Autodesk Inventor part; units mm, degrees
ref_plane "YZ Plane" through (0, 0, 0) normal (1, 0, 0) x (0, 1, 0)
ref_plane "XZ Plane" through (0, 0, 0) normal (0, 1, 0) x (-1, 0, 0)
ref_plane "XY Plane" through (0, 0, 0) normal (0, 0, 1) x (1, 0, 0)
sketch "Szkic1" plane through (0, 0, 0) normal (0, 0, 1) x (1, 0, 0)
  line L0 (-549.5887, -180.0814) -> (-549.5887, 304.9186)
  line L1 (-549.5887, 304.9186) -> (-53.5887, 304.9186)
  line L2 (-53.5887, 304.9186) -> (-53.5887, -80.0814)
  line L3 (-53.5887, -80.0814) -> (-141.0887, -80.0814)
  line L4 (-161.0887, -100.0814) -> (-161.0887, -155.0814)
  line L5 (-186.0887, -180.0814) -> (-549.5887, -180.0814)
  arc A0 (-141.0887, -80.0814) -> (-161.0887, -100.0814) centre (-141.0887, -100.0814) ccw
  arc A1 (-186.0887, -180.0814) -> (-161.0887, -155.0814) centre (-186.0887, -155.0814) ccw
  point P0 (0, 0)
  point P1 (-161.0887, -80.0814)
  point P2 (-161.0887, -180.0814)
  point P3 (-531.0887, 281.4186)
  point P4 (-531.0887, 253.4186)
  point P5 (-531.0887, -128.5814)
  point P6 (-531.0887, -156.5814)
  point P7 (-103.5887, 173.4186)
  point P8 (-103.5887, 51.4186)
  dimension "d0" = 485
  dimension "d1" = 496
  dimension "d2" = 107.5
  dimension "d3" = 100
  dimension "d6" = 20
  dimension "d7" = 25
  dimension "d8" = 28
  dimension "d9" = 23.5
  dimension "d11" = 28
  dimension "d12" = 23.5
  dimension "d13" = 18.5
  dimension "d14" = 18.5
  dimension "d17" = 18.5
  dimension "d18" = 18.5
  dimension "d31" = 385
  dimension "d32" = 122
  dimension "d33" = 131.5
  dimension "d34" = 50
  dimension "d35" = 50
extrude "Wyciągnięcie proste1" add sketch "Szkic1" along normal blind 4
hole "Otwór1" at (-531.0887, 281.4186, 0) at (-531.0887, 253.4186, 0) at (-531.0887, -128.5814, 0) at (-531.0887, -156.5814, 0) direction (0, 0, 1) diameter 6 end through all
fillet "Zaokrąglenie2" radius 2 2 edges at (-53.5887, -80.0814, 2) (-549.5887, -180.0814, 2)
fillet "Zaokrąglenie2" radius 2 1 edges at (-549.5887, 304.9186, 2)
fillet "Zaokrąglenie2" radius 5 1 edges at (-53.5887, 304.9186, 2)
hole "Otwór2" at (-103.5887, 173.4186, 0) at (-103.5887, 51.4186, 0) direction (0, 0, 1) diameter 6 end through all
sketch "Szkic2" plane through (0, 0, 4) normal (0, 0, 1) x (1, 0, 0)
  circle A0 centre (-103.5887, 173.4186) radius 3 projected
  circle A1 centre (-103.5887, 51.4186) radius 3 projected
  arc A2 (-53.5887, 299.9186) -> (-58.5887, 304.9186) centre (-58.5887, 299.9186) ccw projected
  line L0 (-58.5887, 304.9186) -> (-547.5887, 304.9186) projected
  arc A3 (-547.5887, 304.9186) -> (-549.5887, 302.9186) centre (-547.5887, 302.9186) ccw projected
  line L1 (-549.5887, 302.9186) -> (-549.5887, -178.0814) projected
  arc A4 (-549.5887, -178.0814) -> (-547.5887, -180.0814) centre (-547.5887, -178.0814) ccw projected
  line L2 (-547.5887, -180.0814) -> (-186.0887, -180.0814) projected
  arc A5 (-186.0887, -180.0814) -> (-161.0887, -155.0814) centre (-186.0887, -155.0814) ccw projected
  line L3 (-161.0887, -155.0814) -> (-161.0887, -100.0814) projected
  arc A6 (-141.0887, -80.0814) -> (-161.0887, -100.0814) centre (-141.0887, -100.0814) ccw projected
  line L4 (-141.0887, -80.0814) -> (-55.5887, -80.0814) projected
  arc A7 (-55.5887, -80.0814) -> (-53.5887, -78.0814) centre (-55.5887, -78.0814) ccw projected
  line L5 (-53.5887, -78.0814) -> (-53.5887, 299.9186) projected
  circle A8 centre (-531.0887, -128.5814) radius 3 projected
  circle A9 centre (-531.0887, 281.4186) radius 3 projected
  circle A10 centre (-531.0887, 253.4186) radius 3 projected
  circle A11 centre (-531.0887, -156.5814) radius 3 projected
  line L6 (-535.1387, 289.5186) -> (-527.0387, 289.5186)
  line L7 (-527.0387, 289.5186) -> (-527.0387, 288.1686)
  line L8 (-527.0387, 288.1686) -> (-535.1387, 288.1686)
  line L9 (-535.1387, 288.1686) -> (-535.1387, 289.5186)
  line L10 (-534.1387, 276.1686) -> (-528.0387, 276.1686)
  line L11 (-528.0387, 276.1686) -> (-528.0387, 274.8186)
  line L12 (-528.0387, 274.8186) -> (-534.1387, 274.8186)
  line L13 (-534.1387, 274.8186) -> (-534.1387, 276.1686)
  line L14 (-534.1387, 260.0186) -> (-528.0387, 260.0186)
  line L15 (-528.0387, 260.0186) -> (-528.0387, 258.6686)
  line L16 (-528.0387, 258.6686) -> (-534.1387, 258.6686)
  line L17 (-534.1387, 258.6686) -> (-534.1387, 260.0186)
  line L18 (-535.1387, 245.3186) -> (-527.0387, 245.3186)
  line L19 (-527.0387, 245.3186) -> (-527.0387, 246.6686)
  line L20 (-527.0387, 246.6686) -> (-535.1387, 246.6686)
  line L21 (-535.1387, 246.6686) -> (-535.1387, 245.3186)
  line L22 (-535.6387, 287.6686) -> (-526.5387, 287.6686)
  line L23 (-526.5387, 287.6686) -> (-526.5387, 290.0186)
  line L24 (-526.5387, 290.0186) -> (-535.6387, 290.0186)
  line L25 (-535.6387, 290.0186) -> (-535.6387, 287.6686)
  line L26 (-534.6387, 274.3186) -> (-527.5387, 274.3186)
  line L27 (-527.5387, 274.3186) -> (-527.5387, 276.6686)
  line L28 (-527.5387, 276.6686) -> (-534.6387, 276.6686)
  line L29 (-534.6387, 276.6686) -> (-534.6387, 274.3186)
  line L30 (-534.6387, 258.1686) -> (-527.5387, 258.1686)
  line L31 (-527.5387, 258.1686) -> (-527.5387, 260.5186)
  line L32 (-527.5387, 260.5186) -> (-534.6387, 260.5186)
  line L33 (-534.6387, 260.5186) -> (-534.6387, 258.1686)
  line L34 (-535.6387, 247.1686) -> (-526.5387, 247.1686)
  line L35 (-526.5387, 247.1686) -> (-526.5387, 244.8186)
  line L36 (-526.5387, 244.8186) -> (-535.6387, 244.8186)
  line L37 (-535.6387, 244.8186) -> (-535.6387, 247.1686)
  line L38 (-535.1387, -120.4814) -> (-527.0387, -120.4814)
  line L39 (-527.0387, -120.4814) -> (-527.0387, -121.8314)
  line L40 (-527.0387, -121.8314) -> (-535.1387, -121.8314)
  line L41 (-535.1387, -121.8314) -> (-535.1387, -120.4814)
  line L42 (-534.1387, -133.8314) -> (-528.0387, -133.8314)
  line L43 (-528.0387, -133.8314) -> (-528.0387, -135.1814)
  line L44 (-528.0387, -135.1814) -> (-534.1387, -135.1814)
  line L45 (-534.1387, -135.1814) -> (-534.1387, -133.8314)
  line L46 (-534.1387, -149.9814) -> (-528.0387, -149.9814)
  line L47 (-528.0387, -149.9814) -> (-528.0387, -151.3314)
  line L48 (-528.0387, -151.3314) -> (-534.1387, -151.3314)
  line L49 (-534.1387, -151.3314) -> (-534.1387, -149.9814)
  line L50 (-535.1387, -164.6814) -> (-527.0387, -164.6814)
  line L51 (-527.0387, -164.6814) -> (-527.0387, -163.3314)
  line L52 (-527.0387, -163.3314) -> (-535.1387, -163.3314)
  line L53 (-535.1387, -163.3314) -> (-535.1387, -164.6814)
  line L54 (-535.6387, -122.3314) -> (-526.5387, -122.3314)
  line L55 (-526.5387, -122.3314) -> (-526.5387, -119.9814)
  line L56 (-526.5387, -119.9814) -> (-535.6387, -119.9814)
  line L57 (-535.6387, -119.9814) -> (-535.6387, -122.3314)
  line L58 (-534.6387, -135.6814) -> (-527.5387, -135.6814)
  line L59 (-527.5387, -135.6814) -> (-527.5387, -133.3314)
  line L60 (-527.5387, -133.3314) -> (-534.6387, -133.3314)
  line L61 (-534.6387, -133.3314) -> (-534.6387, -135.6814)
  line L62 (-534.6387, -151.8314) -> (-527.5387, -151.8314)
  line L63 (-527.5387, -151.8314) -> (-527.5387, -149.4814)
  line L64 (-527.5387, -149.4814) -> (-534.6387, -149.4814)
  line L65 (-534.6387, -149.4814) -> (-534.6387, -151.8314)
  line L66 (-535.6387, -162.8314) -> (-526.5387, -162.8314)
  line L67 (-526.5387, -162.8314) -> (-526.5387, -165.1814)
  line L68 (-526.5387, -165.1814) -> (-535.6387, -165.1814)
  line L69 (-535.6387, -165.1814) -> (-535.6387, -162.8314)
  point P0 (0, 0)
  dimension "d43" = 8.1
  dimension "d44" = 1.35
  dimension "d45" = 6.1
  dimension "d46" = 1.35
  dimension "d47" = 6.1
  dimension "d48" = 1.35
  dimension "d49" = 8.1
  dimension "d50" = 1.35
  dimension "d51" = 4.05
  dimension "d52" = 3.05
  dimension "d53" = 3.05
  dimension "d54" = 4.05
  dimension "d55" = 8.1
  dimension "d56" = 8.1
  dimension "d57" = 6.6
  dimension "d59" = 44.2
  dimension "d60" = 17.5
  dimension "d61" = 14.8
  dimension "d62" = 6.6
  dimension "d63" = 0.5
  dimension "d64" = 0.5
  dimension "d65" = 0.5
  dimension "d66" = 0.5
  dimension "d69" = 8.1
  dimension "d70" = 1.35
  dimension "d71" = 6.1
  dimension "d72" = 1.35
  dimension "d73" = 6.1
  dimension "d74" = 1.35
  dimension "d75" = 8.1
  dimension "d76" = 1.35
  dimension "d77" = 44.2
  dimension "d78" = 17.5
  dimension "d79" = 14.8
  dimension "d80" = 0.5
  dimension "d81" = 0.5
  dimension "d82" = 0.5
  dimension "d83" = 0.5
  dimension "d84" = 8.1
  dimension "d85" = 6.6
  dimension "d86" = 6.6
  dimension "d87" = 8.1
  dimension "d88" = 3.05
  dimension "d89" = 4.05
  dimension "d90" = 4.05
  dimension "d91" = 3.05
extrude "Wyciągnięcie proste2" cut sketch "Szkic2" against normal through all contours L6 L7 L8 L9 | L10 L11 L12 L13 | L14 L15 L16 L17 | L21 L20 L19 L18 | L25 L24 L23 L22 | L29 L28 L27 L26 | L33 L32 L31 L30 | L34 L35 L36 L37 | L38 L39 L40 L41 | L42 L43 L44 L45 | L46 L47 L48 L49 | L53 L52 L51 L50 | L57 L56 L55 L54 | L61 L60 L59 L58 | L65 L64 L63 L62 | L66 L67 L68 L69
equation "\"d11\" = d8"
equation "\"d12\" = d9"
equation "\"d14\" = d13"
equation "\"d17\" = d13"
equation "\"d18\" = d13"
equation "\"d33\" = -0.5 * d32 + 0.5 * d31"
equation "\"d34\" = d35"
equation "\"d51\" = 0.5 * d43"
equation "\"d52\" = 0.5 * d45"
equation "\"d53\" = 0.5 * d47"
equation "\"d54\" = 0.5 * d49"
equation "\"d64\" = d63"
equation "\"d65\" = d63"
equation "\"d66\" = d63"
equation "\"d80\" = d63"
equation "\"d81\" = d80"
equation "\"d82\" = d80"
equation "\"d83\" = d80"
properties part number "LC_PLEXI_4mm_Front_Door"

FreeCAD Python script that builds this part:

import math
import FreeCAD as App
import Part
import Sketcher


def edges_at(feature, points):
    """Names of the edges that pass closest to the given points."""
    edges = feature.Shape.Edges
    near = lambda p: min(range(len(edges)), key=lambda i: edges[i].distToShape(Part.Vertex(*p))[0])
    return sorted({f"Edge{near(p) + 1}" for p in points})

doc = App.newDocument("Part")
body = doc.addObject("PartDesign::Body", "Body")

# Sketch on XY plane
sketch1 = body.newObject("Sketcher::SketchObject", "Sketch")
sketch1.AttachmentSupport = (doc.getObject("XY_Plane"), [""])
sketch1.MapMode = "FlatFace"
sketch1.addGeometry([
    Part.LineSegment(App.Vector(-550, 305, 0), App.Vector(-550, -180, 0)),  # 0
    Part.LineSegment(App.Vector(-550, -180, 0), App.Vector(-186, -180, 0)),  # 1
    Part.ArcOfCircle(Part.Circle(App.Vector(-186, -155, 0), App.Vector(0, 0, 1), 25), math.radians(-90), math.radians(0)),  # 2
    Part.LineSegment(App.Vector(-161, -155, 0), App.Vector(-161, -100, 0)),  # 3
    Part.ArcOfCircle(Part.Circle(App.Vector(-141, -100, 0), App.Vector(0, 0, 1), 20), math.radians(90), math.radians(180)),  # 4
    Part.LineSegment(App.Vector(-141, -80, 0), App.Vector(-54, -80, 0)),  # 5
    Part.LineSegment(App.Vector(-54, -80, 0), App.Vector(-54, 305, 0)),  # 6
    Part.LineSegment(App.Vector(-54, 305, 0), App.Vector(-550, 305, 0)),  # 7
], False)
sketch1.addConstraint([
    Sketcher.Constraint("Coincident", 0, 2, 1, 1),
    Sketcher.Constraint("Tangent", 1, 2, 2, 1),
    Sketcher.Constraint("Tangent", 2, 2, 3, 1),
    Sketcher.Constraint("Tangent", 3, 2, 4, 2),
    Sketcher.Constraint("Tangent", 4, 1, 5, 1),
    Sketcher.Constraint("Coincident", 5, 2, 6, 1),
    Sketcher.Constraint("Coincident", 6, 2, 7, 1),
    Sketcher.Constraint("Coincident", 7, 2, 0, 1),
    Sketcher.Constraint("Vertical", 0),
    Sketcher.Constraint("Horizontal", 1),
    Sketcher.Constraint("Vertical", 3),
    Sketcher.Constraint("Horizontal", 5),
    Sketcher.Constraint("Vertical", 6),
    Sketcher.Constraint("Horizontal", 7),
    Sketcher.Constraint("Radius", 2, 25.0),
    Sketcher.Constraint("Radius", 4, 20.0),
    Sketcher.Constraint("DistanceX", 7, 2, 7, 1, 496.0),
    Sketcher.Constraint("DistanceY", 0, 2, 0, 1, 485.0),
    Sketcher.Constraint("DistanceY", 6, 1, 6, 2, 385.0),
    Sketcher.Constraint("DistanceX", 3, 2, 5, 2, 107.5),
    Sketcher.Constraint("DistanceX", 2, 3, -1, 1, 186.0887),
    Sketcher.Constraint("DistanceY", 2, 3, -1, 1, 155.0814),
])
pad1 = body.newObject("PartDesign::Pad", "Pad")
pad1.Profile = sketch1
pad1.Length = 4

# Sketch on XY plane
sketch2 = body.newObject("Sketcher::SketchObject", "Sketch001")
sketch2.AttachmentSupport = (doc.getObject("XY_Plane"), [""])
sketch2.MapMode = "FlatFace"
sketch2.addGeometry([
    Part.Circle(App.Vector(-531.1, 281.4, 0), App.Vector(0, 0, 1), 3),
    Part.Circle(App.Vector(-531.1, 253.4, 0), App.Vector(0, 0, 1), 3),
    Part.Circle(App.Vector(-531.1, -128.6, 0), App.Vector(0, 0, 1), 3),
    Part.Circle(App.Vector(-531.1, -156.6, 0), App.Vector(0, 0, 1), 3),
], False)
sketch2.addConstraint([
    Sketcher.Constraint("Equal", 0, 1),
    Sketcher.Constraint("Equal", 1, 2),
    Sketcher.Constraint("Equal", 2, 3),
    Sketcher.Constraint("Vertical", 0, 3, 1, 3),
    Sketcher.Constraint("Vertical", 1, 3, 2, 3),
    Sketcher.Constraint("Vertical", 2, 3, 3, 3),
    Sketcher.Constraint("Diameter", 0, 6.0),
    Sketcher.Constraint("DistanceY", 1, 3, 0, 3, 28.0),
    Sketcher.Constraint("DistanceY", 2, 3, 1, 3, 382.0),
    Sketcher.Constraint("DistanceY", 3, 3, 2, 3, 28.0),
    Sketcher.Constraint("DistanceX", 0, 3, -1, 1, 531.0887),
    Sketcher.Constraint("DistanceY", -1, 1, 0, 3, 281.4186),
])
doc.recompute()
hole = body.newObject("PartDesign::Hole", "Hole")
hole.Profile = sketch2
hole.ThreadType = "None"
hole.Diameter = 6
hole.DepthType = "ThroughAll"
hole.Reversed = True
doc.recompute()

fillet = body.newObject("PartDesign::Fillet", "Fillet")
fillet.Base = (hole, edges_at(hole, [(-53.589, -80.081, 2), (-549.589, -180.081, 2)]))
fillet.Radius = 2
doc.recompute()

fillet2 = body.newObject("PartDesign::Fillet", "Fillet001")
fillet2.Base = (fillet, edges_at(fillet, [(-549.589, 304.919, 2)]))
fillet2.Radius = 2
doc.recompute()

fillet3 = body.newObject("PartDesign::Fillet", "Fillet002")
fillet3.Base = (fillet2, edges_at(fillet2, [(-53.589, 304.919, 2)]))
fillet3.Radius = 5

# Sketch on XY plane
sketch3 = body.newObject("Sketcher::SketchObject", "Sketch002")
sketch3.AttachmentSupport = (doc.getObject("XY_Plane"), [""])
sketch3.MapMode = "FlatFace"
sketch3.addGeometry([
    Part.Circle(App.Vector(-103.6, 173.4, 0), App.Vector(0, 0, 1), 3),
    Part.Circle(App.Vector(-103.6, 51.4, 0), App.Vector(0, 0, 1), 3),
], False)
sketch3.addConstraint([
    Sketcher.Constraint("Equal", 0, 1),
    Sketcher.Constraint("Vertical", 0, 3, 1, 3),
    Sketcher.Constraint("Diameter", 0, 6.0),
    Sketcher.Constraint("DistanceY", 1, 3, 0, 3, 122.0),
    Sketcher.Constraint("DistanceX", 0, 3, -1, 1, 103.5887),
    Sketcher.Constraint("DistanceY", -1, 1, 0, 3, 173.4186),
])
doc.recompute()
hole2 = body.newObject("PartDesign::Hole", "Hole001")
hole2.Profile = sketch3
hole2.ThreadType = "None"
hole2.Diameter = 6
hole2.DepthType = "ThroughAll"
hole2.Reversed = True

# Sketch on XY plane
sketch4 = body.newObject("Sketcher::SketchObject", "Sketch003")
sketch4.AttachmentSupport = (doc.getObject("XY_Plane"), [""])
sketch4.MapMode = "FlatFace"
sketch4.AttachmentOffset = App.Placement(App.Vector(0, 0, 4), App.Rotation())
sketch4.addGeometry([
    Part.LineSegment(App.Vector(-535.6, 290, 0), App.Vector(-535.6, 287.7, 0)),  # 0
    Part.LineSegment(App.Vector(-535.6, 287.7, 0), App.Vector(-526.5, 287.7, 0)),  # 1
    Part.LineSegment(App.Vector(-526.5, 287.7, 0), App.Vector(-526.5, 290, 0)),  # 2
    Part.LineSegment(App.Vector(-526.5, 290, 0), App.Vector(-535.6, 290, 0)),  # 3
    Part.LineSegment(App.Vector(-534.6, 276.7, 0), App.Vector(-534.6, 274.3, 0)),  # 4
    Part.LineSegment(App.Vector(-534.6, 274.3, 0), App.Vector(-527.5, 274.3, 0)),  # 5
    Part.LineSegment(App.Vector(-527.5, 274.3, 0), App.Vector(-527.5, 276.7, 0)),  # 6
    Part.LineSegment(App.Vector(-527.5, 276.7, 0), App.Vector(-534.6, 276.7, 0)),  # 7
    Part.LineSegment(App.Vector(-534.6, 260.5, 0), App.Vector(-534.6, 258.2, 0)),  # 8
    Part.LineSegment(App.Vector(-534.6, 258.2, 0), App.Vector(-527.5, 258.2, 0)),  # 9
    Part.LineSegment(App.Vector(-527.5, 258.2, 0), App.Vector(-527.5, 260.5, 0)),  # 10
    Part.LineSegment(App.Vector(-527.5, 260.5, 0), App.Vector(-534.6, 260.5, 0)),  # 11
    Part.LineSegment(App.Vector(-526.5, 247.2, 0), App.Vector(-535.6, 247.2, 0)),  # 12
    Part.LineSegment(App.Vector(-535.6, 247.2, 0), App.Vector(-535.6, 244.8, 0)),  # 13
    Part.LineSegment(App.Vector(-535.6, 244.8, 0), App.Vector(-526.5, 244.8, 0)),  # 14
    Part.LineSegment(App.Vector(-526.5, 244.8, 0), App.Vector(-526.5, 247.2, 0)),  # 15
    Part.LineSegment(App.Vector(-535.6, -120, 0), App.Vector(-535.6, -122.3, 0)),  # 16
    Part.LineSegment(App.Vector(-535.6, -122.3, 0), App.Vector(-526.5, -122.3, 0)),  # 17
    Part.LineSegment(App.Vector(-526.5, -122.3, 0), App.Vector(-526.5, -120, 0)),  # 18
    Part.LineSegment(App.Vector(-526.5, -120, 0), App.Vector(-535.6, -120, 0)),  # 19
    Part.LineSegment(App.Vector(-534.6, -133.3, 0), App.Vector(-534.6, -135.7, 0)),  # 20
    Part.LineSegment(App.Vector(-534.6, -135.7, 0), App.Vector(-527.5, -135.7, 0)),  # 21
    Part.LineSegment(App.Vector(-527.5, -135.7, 0), App.Vector(-527.5, -133.3, 0)),  # 22
    Part.LineSegment(App.Vector(-527.5, -133.3, 0), App.Vector(-534.6, -133.3, 0)),  # 23
    Part.LineSegment(App.Vector(-534.6, -149.5, 0), App.Vector(-534.6, -151.8, 0)),  # 24
    Part.LineSegment(App.Vector(-534.6, -151.8, 0), App.Vector(-527.5, -151.8, 0)),  # 25
    Part.LineSegment(App.Vector(-527.5, -151.8, 0), App.Vector(-527.5, -149.5, 0)),  # 26
    Part.LineSegment(App.Vector(-527.5, -149.5, 0), App.Vector(-534.6, -149.5, 0)),  # 27
    Part.LineSegment(App.Vector(-526.5, -162.8, 0), App.Vector(-535.6, -162.8, 0)),  # 28
    Part.LineSegment(App.Vector(-535.6, -162.8, 0), App.Vector(-535.6, -165.2, 0)),  # 29
    Part.LineSegment(App.Vector(-535.6, -165.2, 0), App.Vector(-526.5, -165.2, 0)),  # 30
    Part.LineSegment(App.Vector(-526.5, -165.2, 0), App.Vector(-526.5, -162.8, 0)),  # 31
], False)
sketch4.addConstraint([
    Sketcher.Constraint("Coincident", 0, 2, 1, 1),
    Sketcher.Constraint("Coincident", 1, 2, 2, 1),
    Sketcher.Constraint("Coincident", 2, 2, 3, 1),
    Sketcher.Constraint("Coincident", 3, 2, 0, 1),
    Sketcher.Constraint("Coincident", 4, 2, 5, 1),
    Sketcher.Constraint("Coincident", 5, 2, 6, 1),
    Sketcher.Constraint("Coincident", 6, 2, 7, 1),
    Sketcher.Constraint("Coincident", 7, 2, 4, 1),
    Sketcher.Constraint("Coincident", 8, 2, 9, 1),
    Sketcher.Constraint("Coincident", 9, 2, 10, 1),
    Sketcher.Constraint("Coincident", 10, 2, 11, 1),
    Sketcher.Constraint("Coincident", 11, 2, 8, 1),
    Sketcher.Constraint("Coincident", 12, 2, 13, 1),
    Sketcher.Constraint("Coincident", 13, 2, 14, 1),
    Sketcher.Constraint("Coincident", 14, 2, 15, 1),
    Sketcher.Constraint("Coincident", 15, 2, 12, 1),
    Sketcher.Constraint("Coincident", 16, 2, 17, 1),
    Sketcher.Constraint("Coincident", 17, 2, 18, 1),
    Sketcher.Constraint("Coincident", 18, 2, 19, 1),
    Sketcher.Constraint("Coincident", 19, 2, 16, 1),
    Sketcher.Constraint("Coincident", 20, 2, 21, 1),
    Sketcher.Constraint("Coincident", 21, 2, 22, 1),
    Sketcher.Constraint("Coincident", 22, 2, 23, 1),
    Sketcher.Constraint("Coincident", 23, 2, 20, 1),
    Sketcher.Constraint("Coincident", 24, 2, 25, 1),
    Sketcher.Constraint("Coincident", 25, 2, 26, 1),
    Sketcher.Constraint("Coincident", 26, 2, 27, 1),
    Sketcher.Constraint("Coincident", 27, 2, 24, 1),
    Sketcher.Constraint("Coincident", 28, 2, 29, 1),
    Sketcher.Constraint("Coincident", 29, 2, 30, 1),
    Sketcher.Constraint("Coincident", 30, 2, 31, 1),
    Sketcher.Constraint("Coincident", 31, 2, 28, 1),
    Sketcher.Constraint("Vertical", 0),
    Sketcher.Constraint("Horizontal", 1),
    Sketcher.Constraint("Vertical", 2),
    Sketcher.Constraint("Horizontal", 3),
    Sketcher.Constraint("Vertical", 4),
    Sketcher.Constraint("Horizontal", 5),
    Sketcher.Constraint("Vertical", 6),
    Sketcher.Constraint("Horizontal", 7),
    Sketcher.Constraint("Vertical", 8),
    Sketcher.Constraint("Horizontal", 9),
    Sketcher.Constraint("Vertical", 10),
    Sketcher.Constraint("Horizontal", 11),
    Sketcher.Constraint("Horizontal", 12),
    Sketcher.Constraint("Vertical", 13),
    Sketcher.Constraint("Horizontal", 14),
    Sketcher.Constraint("Vertical", 15),
    Sketcher.Constraint("Vertical", 16),
    Sketcher.Constraint("Horizontal", 17),
    Sketcher.Constraint("Vertical", 18),
    Sketcher.Constraint("Horizontal", 19),
    Sketcher.Constraint("Vertical", 20),
    Sketcher.Constraint("Horizontal", 21),
    Sketcher.Constraint("Vertical", 22),
    Sketcher.Constraint("Horizontal", 23),
    Sketcher.Constraint("Vertical", 24),
    Sketcher.Constraint("Horizontal", 25),
    Sketcher.Constraint("Vertical", 26),
    Sketcher.Constraint("Horizontal", 27),
    Sketcher.Constraint("Horizontal", 28),
    Sketcher.Constraint("Vertical", 29),
    Sketcher.Constraint("Horizontal", 30),
    Sketcher.Constraint("Vertical", 31),
    Sketcher.Constraint("Vertical", 7, 2, 8, 2),
    Sketcher.Constraint("Vertical", 6, 2, 9, 2),
    Sketcher.Constraint("Vertical", 3, 2, 12, 2),
    Sketcher.Constraint("Vertical", 2, 2, 14, 2),
    Sketcher.Constraint("Vertical", 13, 2, 16, 2),
    Sketcher.Constraint("Vertical", 15, 2, 17, 2),
    Sketcher.Constraint("Vertical", 11, 2, 20, 2),
    Sketcher.Constraint("Vertical", 10, 2, 21, 2),
    Sketcher.Constraint("Vertical", 23, 2, 24, 2),
    Sketcher.Constraint("Vertical", 22, 2, 25, 2),
    Sketcher.Constraint("Vertical", 19, 2, 28, 2),
    Sketcher.Constraint("Vertical", 18, 2, 30, 2),
    Sketcher.Constraint("Equal", 2, 4),
    Sketcher.Constraint("Equal", 6, 8),
    Sketcher.Constraint("Equal", 10, 13),
    Sketcher.Constraint("Equal", 15, 16),
    Sketcher.Constraint("Equal", 18, 20),
    Sketcher.Constraint("Equal", 22, 24),
    Sketcher.Constraint("Equal", 26, 29),
    Sketcher.Constraint("DistanceX", 4, 2, 1, 2, 8.1),
    Sketcher.Constraint("DistanceX", 0, 2, 5, 2, 8.1),
    Sketcher.Constraint("DistanceX", 1, 1, 1, 2, 9.1),
    Sketcher.Constraint("DistanceY", 6, 2, 1, 2, 11.0),
    Sketcher.Constraint("DistanceY", 12, 2, 8, 2, 11.0),
    Sketcher.Constraint("DistanceY", 22, 2, 17, 2, 11.0),
    Sketcher.Constraint("DistanceY", 28, 2, 24, 2, 11.0),
    Sketcher.Constraint("DistanceY", 0, 2, 0, 1, 2.35),
    Sketcher.Constraint("DistanceY", 8, 2, 7, 2, 18.5),
    Sketcher.Constraint("DistanceY", 16, 2, 12, 2, 369.5),
    Sketcher.Constraint("DistanceY", 24, 2, 23, 2, 18.5),
    Sketcher.Constraint("DistanceX", 0, 2, -1, 1, 535.6387),
    Sketcher.Constraint("DistanceY", -1, 1, 0, 2, 287.6686),
])
pocket1 = body.newObject("PartDesign::Pocket", "Pocket")
pocket1.Profile = sketch4
pocket1.Type = "ThroughAll"

doc.recompute()
